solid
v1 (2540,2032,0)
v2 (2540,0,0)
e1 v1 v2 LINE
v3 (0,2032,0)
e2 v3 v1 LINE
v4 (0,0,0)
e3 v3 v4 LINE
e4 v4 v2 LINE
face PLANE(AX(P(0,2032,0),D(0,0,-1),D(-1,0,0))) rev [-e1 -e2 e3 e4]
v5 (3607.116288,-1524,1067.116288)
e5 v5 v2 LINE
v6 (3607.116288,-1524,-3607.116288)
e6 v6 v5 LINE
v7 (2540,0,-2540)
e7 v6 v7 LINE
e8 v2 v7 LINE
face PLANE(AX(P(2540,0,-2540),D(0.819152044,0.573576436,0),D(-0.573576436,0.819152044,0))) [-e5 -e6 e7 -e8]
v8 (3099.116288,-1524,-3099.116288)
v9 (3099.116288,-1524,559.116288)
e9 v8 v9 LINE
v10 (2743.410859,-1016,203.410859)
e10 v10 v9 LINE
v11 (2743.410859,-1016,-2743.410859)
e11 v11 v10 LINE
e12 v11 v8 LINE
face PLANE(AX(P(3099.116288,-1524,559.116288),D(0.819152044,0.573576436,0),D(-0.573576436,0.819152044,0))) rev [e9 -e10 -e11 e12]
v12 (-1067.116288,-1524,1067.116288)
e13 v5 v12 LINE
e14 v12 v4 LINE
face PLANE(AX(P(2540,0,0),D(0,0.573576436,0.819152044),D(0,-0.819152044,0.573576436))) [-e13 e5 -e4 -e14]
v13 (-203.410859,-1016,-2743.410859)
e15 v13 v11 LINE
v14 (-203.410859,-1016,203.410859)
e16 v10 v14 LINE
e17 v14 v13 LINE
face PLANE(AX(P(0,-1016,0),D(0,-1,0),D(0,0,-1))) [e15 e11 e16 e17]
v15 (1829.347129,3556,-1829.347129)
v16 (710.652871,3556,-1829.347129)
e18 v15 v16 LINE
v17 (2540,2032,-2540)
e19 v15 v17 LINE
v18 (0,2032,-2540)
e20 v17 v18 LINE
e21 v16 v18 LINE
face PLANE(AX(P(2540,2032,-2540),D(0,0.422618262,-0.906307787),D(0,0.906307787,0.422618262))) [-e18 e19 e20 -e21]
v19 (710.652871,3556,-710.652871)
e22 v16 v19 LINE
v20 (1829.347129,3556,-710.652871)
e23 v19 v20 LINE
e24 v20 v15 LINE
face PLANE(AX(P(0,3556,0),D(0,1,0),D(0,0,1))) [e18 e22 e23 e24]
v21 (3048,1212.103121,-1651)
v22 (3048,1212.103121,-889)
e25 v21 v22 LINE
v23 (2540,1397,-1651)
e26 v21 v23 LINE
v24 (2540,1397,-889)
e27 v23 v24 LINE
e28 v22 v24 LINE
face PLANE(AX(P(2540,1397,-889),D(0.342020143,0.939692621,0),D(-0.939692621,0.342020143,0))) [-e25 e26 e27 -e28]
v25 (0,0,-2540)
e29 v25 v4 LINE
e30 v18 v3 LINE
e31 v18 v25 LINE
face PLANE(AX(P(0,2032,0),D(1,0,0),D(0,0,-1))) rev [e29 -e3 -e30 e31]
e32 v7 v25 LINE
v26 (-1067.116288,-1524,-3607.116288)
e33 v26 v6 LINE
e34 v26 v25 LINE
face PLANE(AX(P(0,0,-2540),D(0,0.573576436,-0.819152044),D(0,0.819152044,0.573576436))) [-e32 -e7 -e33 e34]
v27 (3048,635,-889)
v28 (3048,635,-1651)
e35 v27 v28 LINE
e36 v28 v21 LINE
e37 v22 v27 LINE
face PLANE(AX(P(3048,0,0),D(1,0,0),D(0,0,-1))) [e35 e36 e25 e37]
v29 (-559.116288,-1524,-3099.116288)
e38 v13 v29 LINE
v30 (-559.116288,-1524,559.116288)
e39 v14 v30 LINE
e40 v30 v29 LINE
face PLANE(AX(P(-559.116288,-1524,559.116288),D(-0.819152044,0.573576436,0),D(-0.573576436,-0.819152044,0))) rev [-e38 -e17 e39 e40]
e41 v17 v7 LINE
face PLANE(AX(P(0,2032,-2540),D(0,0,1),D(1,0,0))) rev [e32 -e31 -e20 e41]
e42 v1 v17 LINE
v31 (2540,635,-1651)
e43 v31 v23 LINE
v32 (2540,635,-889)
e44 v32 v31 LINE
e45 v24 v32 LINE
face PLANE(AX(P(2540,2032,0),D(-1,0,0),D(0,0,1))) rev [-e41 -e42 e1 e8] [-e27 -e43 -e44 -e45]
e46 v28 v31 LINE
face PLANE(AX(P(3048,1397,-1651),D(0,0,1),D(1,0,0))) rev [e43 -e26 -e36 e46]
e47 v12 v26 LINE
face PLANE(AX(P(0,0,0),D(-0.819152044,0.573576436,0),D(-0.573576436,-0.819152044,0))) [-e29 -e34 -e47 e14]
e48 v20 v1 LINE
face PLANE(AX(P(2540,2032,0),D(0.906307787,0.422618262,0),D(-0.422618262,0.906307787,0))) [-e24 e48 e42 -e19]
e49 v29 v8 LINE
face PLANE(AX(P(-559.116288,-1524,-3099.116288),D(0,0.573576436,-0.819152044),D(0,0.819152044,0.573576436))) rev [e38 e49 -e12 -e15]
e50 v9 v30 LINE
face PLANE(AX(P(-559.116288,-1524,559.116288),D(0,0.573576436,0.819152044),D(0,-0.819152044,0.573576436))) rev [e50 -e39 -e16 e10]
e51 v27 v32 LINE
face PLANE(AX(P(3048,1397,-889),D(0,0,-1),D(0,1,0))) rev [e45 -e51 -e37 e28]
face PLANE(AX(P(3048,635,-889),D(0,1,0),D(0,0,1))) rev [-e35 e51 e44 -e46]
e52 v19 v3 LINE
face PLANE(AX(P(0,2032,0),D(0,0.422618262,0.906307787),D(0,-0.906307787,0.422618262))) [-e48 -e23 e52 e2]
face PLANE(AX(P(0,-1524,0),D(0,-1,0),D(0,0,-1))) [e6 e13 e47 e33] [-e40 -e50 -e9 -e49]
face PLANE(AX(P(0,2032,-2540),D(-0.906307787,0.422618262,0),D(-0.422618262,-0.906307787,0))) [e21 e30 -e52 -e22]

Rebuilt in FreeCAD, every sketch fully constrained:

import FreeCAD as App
import Part
import Sketcher
from FreeCAD import Vector
Q = App.Units.Quantity


def faces_at(feature, points):
    """Names of the faces that lie closest to the given points."""
    faces = feature.Shape.Faces
    near = lambda p: min(range(len(faces)), key=lambda i: faces[i].distToShape(Part.Vertex(*p))[0])
    return sorted({f"Face{near(p) + 1}" for p in points})


def add_polygon(sketch, points):
    """Adds a closed chain of lines whose ends are joined by coincident constraints."""
    first, n = sketch.GeometryCount, len(points)
    for a, b in zip(points, points[1:] + points[:1]):
        sketch.addGeometry(Part.LineSegment(App.Vector(*a, 0), App.Vector(*b, 0)), False)
    for i in range(n):
        sketch.addConstraint(Sketcher.Constraint("Coincident", first + i, 2, first + (i + 1) % n, 1))

doc = App.newDocument("Part")
body = doc.addObject("PartDesign::Body", "Body")

sketch1 = body.newObject("Sketcher::SketchObject", "Sketch")
sketch1.AttachmentSupport = (doc.getObject("XZ_Plane"), [""])
sketch1.MapMode = "FlatFace"
add_polygon(sketch1, [(0, -2540), (0, 0), (2540, 0), (2540, -2540)])
sketch1.addConstraint([
    Sketcher.Constraint("Vertical", 0),
    Sketcher.Constraint("Horizontal", 1),
    Sketcher.Constraint("Vertical", 2),
    Sketcher.Constraint("Horizontal", 3),
    Sketcher.Constraint("Coincident", 0, 2, -1, 1),
    Sketcher.Constraint("Equal", 3, 0),
    Sketcher.Constraint("DistanceX", 1, 1, 1, 2, Q("100 in")),
])
pad1 = body.newObject("PartDesign::Pad", "Pad")
pad1.Profile = sketch1
pad1.Length = Q("80 in")
pad1.Reversed = True

sketch2 = body.newObject("Sketcher::SketchObject", "Sketch001")
sketch2.AttachmentSupport = (doc.getObject("XZ_Plane"), [""])
sketch2.MapMode = "FlatFace"
sketch2.AttachmentOffset = App.Placement(Vector(0, 0, -80 * 25.4), App.Rotation())
add_polygon(sketch2, [(0, -2540), (0, 0), (2540, 0), (2540, -2540)])
sketch2.addConstraint([
    Sketcher.Constraint("Vertical", 0),
    Sketcher.Constraint("Horizontal", 1),
    Sketcher.Constraint("Vertical", 2),
    Sketcher.Constraint("Horizontal", 3),
    Sketcher.Constraint("Coincident", 0, 2, -1, 1),
    Sketcher.Constraint("Equal", 3, 0),
    Sketcher.Constraint("DistanceX", 1, 1, 1, 2, Q("100 in")),
])
pad2 = body.newObject("PartDesign::Pad", "Pad001")
pad2.Profile = sketch2
pad2.Length = Q("60 in")
pad2.Reversed = True
pad2.TaperAngle = -25

sketch3 = body.newObject("Sketcher::SketchObject", "Sketch002")
sketch3.AttachmentSupport = (doc.getObject("XZ_Plane"), [""])
sketch3.MapMode = "FlatFace"
add_polygon(sketch3, [(0, 0), (0, -2540), (2540, -2540), (2540, 0)])
sketch3.addConstraint([
    Sketcher.Constraint("Vertical", 0),
    Sketcher.Constraint("Horizontal", 1),
    Sketcher.Constraint("Vertical", 2),
    Sketcher.Constraint("Horizontal", 3),
    Sketcher.Constraint("Coincident", 3, 2, -1, 1),
    Sketcher.Constraint("Equal", 3, 0),
    Sketcher.Constraint("DistanceX", 1, 1, 1, 2, Q("100 in")),
])
pad3 = body.newObject("PartDesign::Pad", "Pad002")
pad3.Profile = sketch3
pad3.Length = Q("60 in")
pad3.TaperAngle = 35

sketch4 = body.newObject("Sketcher::SketchObject", "Sketch003")
sketch4.AttachmentSupport = (doc.getObject("XZ_Plane"), [""])
sketch4.MapMode = "FlatFace"
sketch4.AttachmentOffset = App.Placement(Vector(0, 0, 60 * 25.4), App.Rotation())
add_polygon(sketch4, [(-559, 559), (-559, -3099), (3099, -3099), (3099, 559)])
sketch4.addConstraint([
    Sketcher.Constraint("Vertical", 0),
    Sketcher.Constraint("Horizontal", 1),
    Sketcher.Constraint("Vertical", 2),
    Sketcher.Constraint("Horizontal", 3),
    Sketcher.Constraint("Equal", 3, 0),
    Sketcher.Constraint("DistanceX", 1, 1, 1, 2, Q("3658.232576 mm")),
    Sketcher.Constraint("DistanceX", 0, 2, -1, 1, Q("559.116288 mm")),
    Sketcher.Constraint("DistanceY", 0, 2, -1, 1, Q("3099.116288 mm")),
])
pocket1 = body.newObject("PartDesign::Pocket", "Pocket")
pocket1.Profile = sketch4
pocket1.Length = Q("20 in")
pocket1.TaperAngle = -35

sketch5 = body.newObject("Sketcher::SketchObject", "Sketch004")
sketch5.AttachmentSupport = (doc.getObject("YZ_Plane"), [""])
sketch5.MapMode = "FlatFace"
sketch5.AttachmentOffset = App.Placement(Vector(0, 0, 100 * 25.4), App.Rotation())
add_polygon(sketch5, [(1397, -889), (635, -889), (635, -1651), (1397, -1651)])
sketch5.addConstraint([
    Sketcher.Constraint("Horizontal", 0),
    Sketcher.Constraint("Vertical", 1),
    Sketcher.Constraint("Horizontal", 2),
    Sketcher.Constraint("Vertical", 3),
    Sketcher.Constraint("Equal", 2, 1),
    Sketcher.Constraint("DistanceX", 0, 2, 0, 1, Q("30 in")),
    Sketcher.Constraint("DistanceX", -1, 1, 0, 2, Q("25 in")),
    Sketcher.Constraint("DistanceY", 0, 2, -1, 1, Q("35 in")),
])
pad4 = body.newObject("PartDesign::Pad", "Pad003")
pad4.Profile = sketch5
pad4.Length = Q("20 in")
doc.recompute()

datumplane = body.newObject("PartDesign::Plane", "DatumPlane")
datumplane.AttachmentSupport = (doc.getObject("YZ_Plane"), [""])
datumplane.MapMode = "FlatFace"
datumplane.AttachmentOffset = App.Placement(Vector(0, 0, 100 * 25.4), App.Rotation())
draft = body.newObject("PartDesign::Draft", "Draft")
draft.Base = (pad4, faces_at(pad4, [(2794, 1397, -1270)]))
draft.NeutralPlane = (datumplane, [""])
draft.Angle = 20
draft.Reversed = False

doc.recompute()
